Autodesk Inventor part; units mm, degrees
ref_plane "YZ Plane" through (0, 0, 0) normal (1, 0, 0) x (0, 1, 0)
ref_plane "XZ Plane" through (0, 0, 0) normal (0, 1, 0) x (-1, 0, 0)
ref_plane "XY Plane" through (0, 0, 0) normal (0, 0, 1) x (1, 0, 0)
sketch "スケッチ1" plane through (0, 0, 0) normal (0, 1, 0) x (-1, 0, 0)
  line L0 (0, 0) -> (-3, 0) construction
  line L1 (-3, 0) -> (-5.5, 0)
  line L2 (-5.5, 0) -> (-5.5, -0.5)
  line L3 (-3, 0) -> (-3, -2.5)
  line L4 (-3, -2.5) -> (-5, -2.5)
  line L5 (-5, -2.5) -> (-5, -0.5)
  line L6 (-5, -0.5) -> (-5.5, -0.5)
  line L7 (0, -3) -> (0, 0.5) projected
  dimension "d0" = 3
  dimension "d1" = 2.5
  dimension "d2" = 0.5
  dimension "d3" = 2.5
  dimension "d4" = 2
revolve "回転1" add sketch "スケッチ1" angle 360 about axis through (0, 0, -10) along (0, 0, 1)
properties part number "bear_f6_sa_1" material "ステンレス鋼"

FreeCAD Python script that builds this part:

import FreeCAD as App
import Part
import Sketcher
from FreeCAD import Vector
Q = App.Units.Quantity


def add_polygon(sketch, points):
    """Adds a closed chain of lines whose ends are joined by coincident constraints."""
    first, n = sketch.GeometryCount, len(points)
    for a, b in zip(points, points[1:] + points[:1]):
        sketch.addGeometry(Part.LineSegment(App.Vector(*a, 0), App.Vector(*b, 0)), False)
    for i in range(n):
        sketch.addConstraint(Sketcher.Constraint("Coincident", first + i, 2, first + (i + 1) % n, 1))

doc = App.newDocument("Part")
body = doc.addObject("PartDesign::Body", "Body")

# Sketch on XZ plane
sketch1 = body.newObject("Sketcher::SketchObject", "Sketch")
sketch1.AttachmentSupport = (doc.getObject("XZ_Plane"), [""])
sketch1.MapMode = "FlatFace"
add_polygon(sketch1, [(3, -2.5), (3, 0), (5.5, 0), (5.5, -0.5), (5, -0.5), (5, -2.5)])  # lines 0-5
sketch1.addConstraint([
    Sketcher.Constraint("Vertical", 0),
    Sketcher.Constraint("Horizontal", 1),
    Sketcher.Constraint("Vertical", 2),
    Sketcher.Constraint("Horizontal", 3),
    Sketcher.Constraint("Vertical", 4),
    Sketcher.Constraint("Horizontal", 5),
    Sketcher.Constraint("PointOnObject", 0, 2, -1),
    Sketcher.Constraint("Equal", 1, 0),
    Sketcher.Constraint("Equal", 3, 2),
    Sketcher.Constraint("DistanceX", 5, 2, 5, 1, Q("2 mm")),
    Sketcher.Constraint("DistanceX", 1, 1, 1, 2, Q("2.5 mm")),
    Sketcher.Constraint("DistanceX", -1, 1, 0, 2, Q("3 mm")),
])
revolution = body.newObject("PartDesign::Revolution", "Revolution")
revolution.Profile = sketch1
revolution.ReferenceAxis = (sketch1, ["V_Axis"])
revolution.Angle = 360

doc.recompute()
